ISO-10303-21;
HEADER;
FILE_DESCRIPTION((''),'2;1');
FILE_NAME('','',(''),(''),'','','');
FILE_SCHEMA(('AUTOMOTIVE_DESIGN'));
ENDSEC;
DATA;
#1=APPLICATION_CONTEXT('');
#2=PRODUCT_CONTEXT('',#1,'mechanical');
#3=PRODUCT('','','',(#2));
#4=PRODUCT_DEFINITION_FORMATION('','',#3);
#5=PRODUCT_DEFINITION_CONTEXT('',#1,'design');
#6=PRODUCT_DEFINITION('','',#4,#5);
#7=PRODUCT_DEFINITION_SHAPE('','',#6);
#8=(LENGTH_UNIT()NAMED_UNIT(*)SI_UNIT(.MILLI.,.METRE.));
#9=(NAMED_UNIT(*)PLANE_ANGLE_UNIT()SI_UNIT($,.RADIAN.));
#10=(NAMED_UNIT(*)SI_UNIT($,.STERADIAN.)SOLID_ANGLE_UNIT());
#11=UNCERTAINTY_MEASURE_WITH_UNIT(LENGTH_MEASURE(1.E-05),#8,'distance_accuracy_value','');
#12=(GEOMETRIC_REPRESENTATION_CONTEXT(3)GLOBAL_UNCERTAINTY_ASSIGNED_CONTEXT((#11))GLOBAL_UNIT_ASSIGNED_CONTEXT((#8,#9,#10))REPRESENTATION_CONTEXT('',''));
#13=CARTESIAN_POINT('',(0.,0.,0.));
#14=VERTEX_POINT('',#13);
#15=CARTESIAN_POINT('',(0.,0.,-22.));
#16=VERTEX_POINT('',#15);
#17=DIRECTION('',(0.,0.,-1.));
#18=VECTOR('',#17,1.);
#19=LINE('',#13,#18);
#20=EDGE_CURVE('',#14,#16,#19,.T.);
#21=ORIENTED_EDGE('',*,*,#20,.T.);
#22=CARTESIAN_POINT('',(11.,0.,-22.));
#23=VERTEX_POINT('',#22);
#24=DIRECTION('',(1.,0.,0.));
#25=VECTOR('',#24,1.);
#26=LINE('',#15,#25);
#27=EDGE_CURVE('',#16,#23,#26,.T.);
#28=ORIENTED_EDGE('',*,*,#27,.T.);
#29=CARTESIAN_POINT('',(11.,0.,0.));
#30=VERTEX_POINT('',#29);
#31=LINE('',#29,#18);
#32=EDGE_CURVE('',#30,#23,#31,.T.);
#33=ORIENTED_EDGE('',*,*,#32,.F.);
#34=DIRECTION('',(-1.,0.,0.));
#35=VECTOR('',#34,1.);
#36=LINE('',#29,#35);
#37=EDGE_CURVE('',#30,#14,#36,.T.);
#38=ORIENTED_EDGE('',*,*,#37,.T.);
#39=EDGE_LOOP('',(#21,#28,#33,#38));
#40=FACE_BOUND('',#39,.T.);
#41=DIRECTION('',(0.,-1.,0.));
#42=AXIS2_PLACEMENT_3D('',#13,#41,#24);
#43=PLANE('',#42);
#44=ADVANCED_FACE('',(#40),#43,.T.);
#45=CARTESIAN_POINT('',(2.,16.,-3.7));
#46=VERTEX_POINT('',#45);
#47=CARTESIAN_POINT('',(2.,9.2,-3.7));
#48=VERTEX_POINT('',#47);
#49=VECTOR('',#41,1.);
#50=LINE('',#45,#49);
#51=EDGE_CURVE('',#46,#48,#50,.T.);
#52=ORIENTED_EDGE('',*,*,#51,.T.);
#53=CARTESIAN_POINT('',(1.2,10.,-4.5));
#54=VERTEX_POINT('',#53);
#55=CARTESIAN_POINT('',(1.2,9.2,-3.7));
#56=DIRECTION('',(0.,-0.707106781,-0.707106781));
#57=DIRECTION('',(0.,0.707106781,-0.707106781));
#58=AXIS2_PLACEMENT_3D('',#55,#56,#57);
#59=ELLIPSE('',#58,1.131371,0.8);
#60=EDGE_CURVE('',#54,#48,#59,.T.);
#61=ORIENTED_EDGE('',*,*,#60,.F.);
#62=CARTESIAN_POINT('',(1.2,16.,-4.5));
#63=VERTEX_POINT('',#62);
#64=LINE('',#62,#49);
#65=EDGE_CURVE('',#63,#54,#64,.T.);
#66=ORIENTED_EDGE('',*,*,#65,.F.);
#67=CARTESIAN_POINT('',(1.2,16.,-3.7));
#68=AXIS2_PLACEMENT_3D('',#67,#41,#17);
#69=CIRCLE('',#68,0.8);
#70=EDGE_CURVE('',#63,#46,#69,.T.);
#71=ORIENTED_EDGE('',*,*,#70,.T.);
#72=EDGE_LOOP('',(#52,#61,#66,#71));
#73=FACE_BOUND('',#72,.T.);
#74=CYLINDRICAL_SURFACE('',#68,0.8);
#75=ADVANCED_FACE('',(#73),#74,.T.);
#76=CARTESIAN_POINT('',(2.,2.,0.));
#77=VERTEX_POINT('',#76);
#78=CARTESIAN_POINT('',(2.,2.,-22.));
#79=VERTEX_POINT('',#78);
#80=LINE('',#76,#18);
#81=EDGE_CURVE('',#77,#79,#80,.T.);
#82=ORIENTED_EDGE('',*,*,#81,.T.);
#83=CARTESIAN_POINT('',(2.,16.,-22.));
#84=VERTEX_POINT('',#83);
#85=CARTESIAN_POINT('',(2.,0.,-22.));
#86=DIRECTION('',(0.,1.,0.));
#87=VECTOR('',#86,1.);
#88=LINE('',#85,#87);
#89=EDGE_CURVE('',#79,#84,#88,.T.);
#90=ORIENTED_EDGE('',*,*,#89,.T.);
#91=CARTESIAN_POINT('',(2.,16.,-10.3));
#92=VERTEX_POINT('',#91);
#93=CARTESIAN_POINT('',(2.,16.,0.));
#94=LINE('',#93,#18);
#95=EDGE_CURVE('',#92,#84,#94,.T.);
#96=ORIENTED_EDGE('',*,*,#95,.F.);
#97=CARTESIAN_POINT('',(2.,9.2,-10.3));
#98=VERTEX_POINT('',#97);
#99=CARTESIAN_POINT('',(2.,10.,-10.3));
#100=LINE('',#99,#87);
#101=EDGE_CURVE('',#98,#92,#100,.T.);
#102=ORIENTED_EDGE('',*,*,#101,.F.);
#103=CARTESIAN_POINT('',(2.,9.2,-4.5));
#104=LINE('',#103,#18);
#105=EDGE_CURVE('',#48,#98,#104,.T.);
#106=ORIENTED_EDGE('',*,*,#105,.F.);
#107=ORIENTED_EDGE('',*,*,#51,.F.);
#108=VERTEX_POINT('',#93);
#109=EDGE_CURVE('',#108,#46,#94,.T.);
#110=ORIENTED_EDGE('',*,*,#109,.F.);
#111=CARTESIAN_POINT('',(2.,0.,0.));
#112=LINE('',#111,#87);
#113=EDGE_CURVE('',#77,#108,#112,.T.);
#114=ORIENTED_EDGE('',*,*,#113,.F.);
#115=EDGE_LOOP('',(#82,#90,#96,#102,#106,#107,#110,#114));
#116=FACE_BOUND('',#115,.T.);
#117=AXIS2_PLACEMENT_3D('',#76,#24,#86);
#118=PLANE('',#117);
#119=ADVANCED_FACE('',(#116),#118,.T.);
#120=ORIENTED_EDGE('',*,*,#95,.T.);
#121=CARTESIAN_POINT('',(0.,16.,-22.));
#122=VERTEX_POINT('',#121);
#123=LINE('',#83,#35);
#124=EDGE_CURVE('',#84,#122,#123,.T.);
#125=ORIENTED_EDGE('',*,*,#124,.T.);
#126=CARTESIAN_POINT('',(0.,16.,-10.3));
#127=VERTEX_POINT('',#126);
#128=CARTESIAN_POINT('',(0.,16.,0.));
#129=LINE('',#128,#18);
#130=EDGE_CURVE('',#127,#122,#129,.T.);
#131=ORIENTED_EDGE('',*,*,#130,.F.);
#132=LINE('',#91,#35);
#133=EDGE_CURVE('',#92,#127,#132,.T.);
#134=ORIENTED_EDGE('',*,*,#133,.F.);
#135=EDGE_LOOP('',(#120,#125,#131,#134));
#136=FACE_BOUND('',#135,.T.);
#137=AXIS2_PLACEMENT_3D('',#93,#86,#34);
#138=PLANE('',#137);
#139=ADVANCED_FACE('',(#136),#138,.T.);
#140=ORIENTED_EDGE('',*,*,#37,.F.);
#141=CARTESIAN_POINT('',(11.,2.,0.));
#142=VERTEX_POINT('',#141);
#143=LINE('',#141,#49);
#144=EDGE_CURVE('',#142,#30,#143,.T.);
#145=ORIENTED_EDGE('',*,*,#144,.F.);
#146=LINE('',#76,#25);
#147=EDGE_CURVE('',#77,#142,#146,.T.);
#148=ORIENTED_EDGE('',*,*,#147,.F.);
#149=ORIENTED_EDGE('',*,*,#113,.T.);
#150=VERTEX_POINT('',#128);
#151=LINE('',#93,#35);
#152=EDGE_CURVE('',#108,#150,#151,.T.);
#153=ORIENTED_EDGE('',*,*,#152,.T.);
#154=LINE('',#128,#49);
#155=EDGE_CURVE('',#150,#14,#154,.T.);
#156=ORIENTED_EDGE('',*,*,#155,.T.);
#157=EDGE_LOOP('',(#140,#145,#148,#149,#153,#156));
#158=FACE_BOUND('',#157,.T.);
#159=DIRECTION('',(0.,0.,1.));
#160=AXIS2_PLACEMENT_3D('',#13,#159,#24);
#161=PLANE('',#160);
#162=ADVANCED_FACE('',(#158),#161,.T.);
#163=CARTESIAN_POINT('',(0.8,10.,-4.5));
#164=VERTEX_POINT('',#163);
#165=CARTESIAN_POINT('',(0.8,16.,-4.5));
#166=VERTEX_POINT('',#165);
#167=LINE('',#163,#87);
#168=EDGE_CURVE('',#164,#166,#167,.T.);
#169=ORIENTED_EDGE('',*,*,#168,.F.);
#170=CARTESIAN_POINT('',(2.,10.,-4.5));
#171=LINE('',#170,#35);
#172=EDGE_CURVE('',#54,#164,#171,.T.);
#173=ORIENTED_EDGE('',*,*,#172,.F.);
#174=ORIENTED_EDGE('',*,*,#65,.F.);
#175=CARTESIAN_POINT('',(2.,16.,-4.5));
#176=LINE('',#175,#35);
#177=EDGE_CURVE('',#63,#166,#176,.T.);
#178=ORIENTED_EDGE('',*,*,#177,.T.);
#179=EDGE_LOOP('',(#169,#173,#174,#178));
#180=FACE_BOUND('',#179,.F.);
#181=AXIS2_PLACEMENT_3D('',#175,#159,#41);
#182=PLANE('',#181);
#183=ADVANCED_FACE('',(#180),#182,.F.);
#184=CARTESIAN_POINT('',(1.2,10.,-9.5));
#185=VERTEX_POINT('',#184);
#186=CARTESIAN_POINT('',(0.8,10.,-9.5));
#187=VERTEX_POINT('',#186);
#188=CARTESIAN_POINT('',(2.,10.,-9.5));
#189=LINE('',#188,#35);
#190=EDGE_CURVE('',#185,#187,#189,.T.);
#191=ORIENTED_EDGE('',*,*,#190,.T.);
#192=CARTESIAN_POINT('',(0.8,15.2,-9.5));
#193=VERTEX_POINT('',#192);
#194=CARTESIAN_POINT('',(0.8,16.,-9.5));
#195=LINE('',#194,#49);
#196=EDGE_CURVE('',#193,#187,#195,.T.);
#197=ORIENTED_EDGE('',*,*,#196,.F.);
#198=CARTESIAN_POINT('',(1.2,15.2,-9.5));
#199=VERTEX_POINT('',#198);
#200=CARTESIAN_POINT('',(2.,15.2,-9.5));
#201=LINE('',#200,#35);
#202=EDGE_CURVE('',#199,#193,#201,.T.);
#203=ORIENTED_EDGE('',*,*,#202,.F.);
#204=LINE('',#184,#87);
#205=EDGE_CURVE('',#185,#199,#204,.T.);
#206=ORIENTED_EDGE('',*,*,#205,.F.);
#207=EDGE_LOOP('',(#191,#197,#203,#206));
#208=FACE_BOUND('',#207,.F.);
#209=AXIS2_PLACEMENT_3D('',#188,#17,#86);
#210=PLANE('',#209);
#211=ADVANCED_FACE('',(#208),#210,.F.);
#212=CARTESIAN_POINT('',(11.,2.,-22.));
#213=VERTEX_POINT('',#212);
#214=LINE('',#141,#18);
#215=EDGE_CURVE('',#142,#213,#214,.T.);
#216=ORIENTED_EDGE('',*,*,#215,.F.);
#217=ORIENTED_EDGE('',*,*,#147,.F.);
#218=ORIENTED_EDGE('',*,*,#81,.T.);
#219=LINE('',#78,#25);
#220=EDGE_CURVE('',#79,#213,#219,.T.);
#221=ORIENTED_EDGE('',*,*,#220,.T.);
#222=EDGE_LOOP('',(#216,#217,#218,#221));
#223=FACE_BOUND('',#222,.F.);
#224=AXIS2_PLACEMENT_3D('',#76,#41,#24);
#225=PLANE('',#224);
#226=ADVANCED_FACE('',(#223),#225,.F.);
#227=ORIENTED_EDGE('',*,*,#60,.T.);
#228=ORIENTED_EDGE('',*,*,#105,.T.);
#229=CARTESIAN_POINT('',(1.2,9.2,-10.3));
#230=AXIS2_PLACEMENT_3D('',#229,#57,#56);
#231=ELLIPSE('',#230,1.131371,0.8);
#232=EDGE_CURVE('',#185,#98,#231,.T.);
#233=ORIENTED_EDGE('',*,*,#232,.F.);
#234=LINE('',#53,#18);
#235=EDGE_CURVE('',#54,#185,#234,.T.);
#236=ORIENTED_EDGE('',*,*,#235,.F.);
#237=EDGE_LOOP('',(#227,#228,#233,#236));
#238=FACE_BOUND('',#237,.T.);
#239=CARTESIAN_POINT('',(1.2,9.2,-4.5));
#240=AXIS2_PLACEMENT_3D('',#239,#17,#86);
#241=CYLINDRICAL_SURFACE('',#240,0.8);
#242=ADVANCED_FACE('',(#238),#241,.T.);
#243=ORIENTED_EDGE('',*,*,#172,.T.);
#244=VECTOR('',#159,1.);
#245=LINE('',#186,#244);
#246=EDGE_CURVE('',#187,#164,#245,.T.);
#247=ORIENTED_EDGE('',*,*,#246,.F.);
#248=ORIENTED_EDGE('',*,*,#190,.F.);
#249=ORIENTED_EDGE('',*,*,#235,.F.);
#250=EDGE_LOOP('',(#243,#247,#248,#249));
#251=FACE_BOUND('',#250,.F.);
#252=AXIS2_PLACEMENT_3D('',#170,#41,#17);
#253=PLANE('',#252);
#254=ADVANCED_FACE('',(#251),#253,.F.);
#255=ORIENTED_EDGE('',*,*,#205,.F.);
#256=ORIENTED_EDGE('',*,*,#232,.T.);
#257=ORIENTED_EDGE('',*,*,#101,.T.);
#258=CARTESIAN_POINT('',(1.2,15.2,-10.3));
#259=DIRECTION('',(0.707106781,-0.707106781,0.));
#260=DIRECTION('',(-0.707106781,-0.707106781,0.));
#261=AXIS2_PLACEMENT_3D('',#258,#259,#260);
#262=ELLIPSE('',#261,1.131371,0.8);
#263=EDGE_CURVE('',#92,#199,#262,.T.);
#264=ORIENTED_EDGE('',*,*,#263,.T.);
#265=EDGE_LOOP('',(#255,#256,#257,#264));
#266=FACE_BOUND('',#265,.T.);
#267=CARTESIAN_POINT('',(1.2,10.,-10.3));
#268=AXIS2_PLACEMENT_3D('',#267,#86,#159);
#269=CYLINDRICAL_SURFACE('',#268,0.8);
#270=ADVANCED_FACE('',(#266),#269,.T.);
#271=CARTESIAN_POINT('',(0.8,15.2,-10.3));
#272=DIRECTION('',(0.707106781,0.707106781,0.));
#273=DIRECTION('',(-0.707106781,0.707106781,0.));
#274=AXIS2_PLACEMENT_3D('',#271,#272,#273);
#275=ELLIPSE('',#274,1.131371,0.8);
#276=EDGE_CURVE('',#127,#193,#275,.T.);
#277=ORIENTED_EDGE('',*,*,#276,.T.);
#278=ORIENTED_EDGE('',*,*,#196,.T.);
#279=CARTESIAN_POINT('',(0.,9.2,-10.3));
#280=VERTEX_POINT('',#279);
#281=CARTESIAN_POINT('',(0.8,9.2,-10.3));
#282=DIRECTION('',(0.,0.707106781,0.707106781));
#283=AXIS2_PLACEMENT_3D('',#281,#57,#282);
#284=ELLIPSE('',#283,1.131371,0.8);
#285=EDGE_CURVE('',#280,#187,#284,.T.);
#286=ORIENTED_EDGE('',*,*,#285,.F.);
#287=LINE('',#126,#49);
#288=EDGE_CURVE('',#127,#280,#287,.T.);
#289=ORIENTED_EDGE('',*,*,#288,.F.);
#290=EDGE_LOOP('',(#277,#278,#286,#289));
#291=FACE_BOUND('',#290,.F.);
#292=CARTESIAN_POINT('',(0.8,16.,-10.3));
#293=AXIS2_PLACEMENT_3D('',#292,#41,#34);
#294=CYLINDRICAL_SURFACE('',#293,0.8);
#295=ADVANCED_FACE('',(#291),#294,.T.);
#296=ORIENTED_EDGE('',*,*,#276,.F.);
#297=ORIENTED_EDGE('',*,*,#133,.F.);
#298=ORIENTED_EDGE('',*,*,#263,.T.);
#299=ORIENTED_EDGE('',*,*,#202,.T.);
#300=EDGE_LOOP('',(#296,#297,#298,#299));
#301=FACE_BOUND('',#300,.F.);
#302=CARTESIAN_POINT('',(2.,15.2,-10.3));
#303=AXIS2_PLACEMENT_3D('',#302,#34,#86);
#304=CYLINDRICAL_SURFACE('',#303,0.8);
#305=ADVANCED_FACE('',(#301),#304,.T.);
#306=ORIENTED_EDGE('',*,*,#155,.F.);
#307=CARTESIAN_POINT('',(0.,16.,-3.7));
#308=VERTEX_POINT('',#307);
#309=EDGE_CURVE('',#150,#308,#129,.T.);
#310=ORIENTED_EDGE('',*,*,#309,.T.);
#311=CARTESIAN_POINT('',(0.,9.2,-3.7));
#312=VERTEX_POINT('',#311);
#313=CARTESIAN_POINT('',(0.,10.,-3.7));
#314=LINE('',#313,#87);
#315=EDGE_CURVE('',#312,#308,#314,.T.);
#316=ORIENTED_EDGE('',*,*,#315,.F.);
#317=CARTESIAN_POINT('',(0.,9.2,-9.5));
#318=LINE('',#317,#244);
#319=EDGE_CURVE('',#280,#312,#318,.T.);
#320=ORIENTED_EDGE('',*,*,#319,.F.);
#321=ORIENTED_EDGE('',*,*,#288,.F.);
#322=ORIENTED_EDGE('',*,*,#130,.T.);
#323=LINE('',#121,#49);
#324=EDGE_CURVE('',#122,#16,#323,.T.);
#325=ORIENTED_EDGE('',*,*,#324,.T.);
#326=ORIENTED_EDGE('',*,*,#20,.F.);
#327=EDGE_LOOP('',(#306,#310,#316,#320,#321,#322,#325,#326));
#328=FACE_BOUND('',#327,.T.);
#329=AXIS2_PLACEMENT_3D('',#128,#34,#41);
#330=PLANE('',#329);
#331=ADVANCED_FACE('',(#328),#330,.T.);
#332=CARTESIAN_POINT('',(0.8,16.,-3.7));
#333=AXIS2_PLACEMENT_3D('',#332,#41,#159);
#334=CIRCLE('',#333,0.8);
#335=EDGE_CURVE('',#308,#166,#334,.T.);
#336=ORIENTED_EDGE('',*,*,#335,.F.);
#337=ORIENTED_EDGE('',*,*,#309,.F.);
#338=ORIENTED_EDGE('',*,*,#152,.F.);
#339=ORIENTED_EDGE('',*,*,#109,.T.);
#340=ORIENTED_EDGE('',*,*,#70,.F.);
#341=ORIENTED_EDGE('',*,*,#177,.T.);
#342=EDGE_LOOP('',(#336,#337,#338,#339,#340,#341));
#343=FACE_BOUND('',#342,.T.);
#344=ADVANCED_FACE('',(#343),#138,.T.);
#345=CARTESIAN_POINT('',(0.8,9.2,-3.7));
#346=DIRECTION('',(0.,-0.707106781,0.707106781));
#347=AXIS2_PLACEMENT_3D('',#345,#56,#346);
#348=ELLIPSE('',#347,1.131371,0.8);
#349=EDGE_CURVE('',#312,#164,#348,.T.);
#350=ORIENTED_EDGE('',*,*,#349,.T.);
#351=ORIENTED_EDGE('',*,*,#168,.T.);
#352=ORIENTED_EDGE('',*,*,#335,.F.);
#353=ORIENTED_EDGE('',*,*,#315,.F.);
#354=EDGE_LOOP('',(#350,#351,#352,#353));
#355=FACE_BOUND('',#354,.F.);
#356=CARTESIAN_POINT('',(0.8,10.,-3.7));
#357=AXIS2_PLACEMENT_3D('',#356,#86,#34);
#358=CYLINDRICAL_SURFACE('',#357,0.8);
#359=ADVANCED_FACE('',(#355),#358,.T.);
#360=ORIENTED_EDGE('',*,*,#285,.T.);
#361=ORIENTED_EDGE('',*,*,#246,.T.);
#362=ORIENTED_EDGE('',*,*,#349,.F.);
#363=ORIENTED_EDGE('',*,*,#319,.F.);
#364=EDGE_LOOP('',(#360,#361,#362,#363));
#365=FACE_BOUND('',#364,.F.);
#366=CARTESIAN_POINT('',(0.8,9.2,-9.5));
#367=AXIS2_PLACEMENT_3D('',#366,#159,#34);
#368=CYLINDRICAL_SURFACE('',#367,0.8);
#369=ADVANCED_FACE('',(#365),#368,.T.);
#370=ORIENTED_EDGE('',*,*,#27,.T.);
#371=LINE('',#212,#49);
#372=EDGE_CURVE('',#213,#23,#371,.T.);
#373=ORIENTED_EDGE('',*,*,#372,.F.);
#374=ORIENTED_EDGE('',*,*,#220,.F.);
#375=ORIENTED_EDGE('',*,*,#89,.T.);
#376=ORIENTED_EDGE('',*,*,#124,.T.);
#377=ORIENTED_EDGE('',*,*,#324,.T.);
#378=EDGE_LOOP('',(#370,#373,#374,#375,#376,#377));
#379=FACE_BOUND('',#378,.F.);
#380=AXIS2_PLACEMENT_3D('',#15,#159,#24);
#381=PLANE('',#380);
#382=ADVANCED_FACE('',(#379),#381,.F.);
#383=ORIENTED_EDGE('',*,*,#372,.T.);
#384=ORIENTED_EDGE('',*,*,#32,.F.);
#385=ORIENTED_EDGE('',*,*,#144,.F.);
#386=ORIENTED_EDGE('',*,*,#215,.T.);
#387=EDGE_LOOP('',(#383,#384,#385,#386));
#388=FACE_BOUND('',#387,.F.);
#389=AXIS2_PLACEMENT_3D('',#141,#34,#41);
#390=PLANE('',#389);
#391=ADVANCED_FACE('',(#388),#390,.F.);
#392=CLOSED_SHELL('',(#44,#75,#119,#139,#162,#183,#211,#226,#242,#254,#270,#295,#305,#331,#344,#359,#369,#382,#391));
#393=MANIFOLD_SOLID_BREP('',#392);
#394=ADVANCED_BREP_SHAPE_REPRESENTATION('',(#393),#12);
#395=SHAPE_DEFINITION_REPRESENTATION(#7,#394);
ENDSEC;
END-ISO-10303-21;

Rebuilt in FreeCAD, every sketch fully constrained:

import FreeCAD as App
import Part
import Sketcher

V = App.Vector


def edges_at(feature, points):
    """Names of the edges that pass closest to the given points."""
    edges = feature.Shape.Edges
    near = lambda p: min(range(len(edges)), key=lambda i: edges[i].distToShape(Part.Vertex(*p))[0])
    return sorted({f"Edge{near(p) + 1}" for p in points})


def add_polygon(sketch, points):
    """Adds a closed chain of lines whose ends are joined by coincident constraints."""
    first, n = sketch.GeometryCount, len(points)
    for a, b in zip(points, points[1:] + points[:1]):
        sketch.addGeometry(Part.LineSegment(App.Vector(*a, 0), App.Vector(*b, 0)), False)
    for i in range(n):
        sketch.addConstraint(Sketcher.Constraint("Coincident", first + i, 2, first + (i + 1) % n, 1))

doc = App.newDocument("Part")
params = doc.addObject("Spreadsheet::Sheet", "Params")
for row, (alias, value) in enumerate([
    ("sketch1_width", "9 mm"),
    ("sketch1_width2", "2 mm"),
    ("sketch1_height", "16 mm"),
    ("pad1_length", "22 mm"),
    ("sketch2_width", "6 mm"),
    ("sketch2_height", "5 mm"),
    ("pocket1_length", "10 mm"),
    ("fillet_radius", "0.8 mm"),
], start=1):
    params.set(f"A{row}", alias)
    params.set(f"B{row}", "=" + value)
    params.setAlias(f"B{row}", alias)

body = doc.addObject("PartDesign::Body", "Body")

# Sketch on XY plane
sketch1 = body.newObject("Sketcher::SketchObject", "Sketch")
sketch1.AttachmentSupport = (doc.getObject("XY_Plane"), [""])
sketch1.MapMode = "FlatFace"
add_polygon(sketch1, [(0, 16), (0, 0), (11, 0), (11, 2), (2, 2), (2, 16)])  # lines 0-5
sketch1.addConstraint([
    Sketcher.Constraint("Vertical", 0),
    Sketcher.Constraint("Horizontal", 1),
    Sketcher.Constraint("Vertical", 2),
    Sketcher.Constraint("Horizontal", 3),
    Sketcher.Constraint("Vertical", 4),
    Sketcher.Constraint("Horizontal", 5),
    Sketcher.Constraint("Coincident", 0, 2, -1, 1),
    Sketcher.Constraint("Equal", 5, 2),
    Sketcher.Constraint("DistanceX", 3, 2, 3, 1, 9.0),
    Sketcher.Constraint("DistanceX", 5, 2, 5, 1, 2.0),
    Sketcher.Constraint("DistanceY", 0, 2, 0, 1, 16.0),
])
sketch1.setExpression("Constraints[14]", "Params.sketch1_width")
sketch1.setExpression("Constraints[15]", "Params.sketch1_width2")
sketch1.setExpression("Constraints[16]", "Params.sketch1_height")
pad1 = body.newObject("PartDesign::Pad", "Pad")
pad1.Profile = sketch1
pad1.setExpression("Length", "Params.pad1_length")
pad1.Reversed = True

# Sketch on YZ plane
sketch2 = body.newObject("Sketcher::SketchObject", "Sketch001")
sketch2.AttachmentSupport = (doc.getObject("YZ_Plane"), [""])
sketch2.MapMode = "FlatFace"
sketch2.AttachmentOffset = App.Placement(V(0, 0, 2), App.Rotation())
add_polygon(sketch2, [(10, -10), (16, -10), (16, -4), (10, -4)])  # lines 0-3
sketch2.addConstraint([
    Sketcher.Constraint("Horizontal", 0),
    Sketcher.Constraint("Vertical", 1),
    Sketcher.Constraint("Horizontal", 2),
    Sketcher.Constraint("Vertical", 3),
    Sketcher.Constraint("DistanceX", 0, 1, 0, 2, 6.0),
    Sketcher.Constraint("DistanceY", 1, 1, 1, 2, 5.0),
    Sketcher.Constraint("DistanceX", -1, 1, 0, 2, 16.0),
    Sketcher.Constraint("DistanceY", 0, 2, -1, 1, 9.5),
])
sketch2.setExpression("Constraints[8]", "Params.sketch2_width")
sketch2.setExpression("Constraints[9]", "Params.sketch2_height")
pocket1 = body.newObject("PartDesign::Pocket", "Pocket")
pocket1.Profile = sketch2
pocket1.setExpression("Length", "Params.pocket1_length")
doc.recompute()

fillet = body.newObject("PartDesign::Fillet", "Fillet")
fillet.Base = (pocket1, edges_at(pocket1, [
    (2, 10, -7),
    (0, 10, -7),
    (1, 16, -9.5),
    (2, 13, -9.5),
    (0, 13, -9.5),
    (2, 13, -4.5),
    (0, 13, -4.5),
]))
fillet.setExpression("Radius", "Params.fillet_radius")

doc.recompute()
